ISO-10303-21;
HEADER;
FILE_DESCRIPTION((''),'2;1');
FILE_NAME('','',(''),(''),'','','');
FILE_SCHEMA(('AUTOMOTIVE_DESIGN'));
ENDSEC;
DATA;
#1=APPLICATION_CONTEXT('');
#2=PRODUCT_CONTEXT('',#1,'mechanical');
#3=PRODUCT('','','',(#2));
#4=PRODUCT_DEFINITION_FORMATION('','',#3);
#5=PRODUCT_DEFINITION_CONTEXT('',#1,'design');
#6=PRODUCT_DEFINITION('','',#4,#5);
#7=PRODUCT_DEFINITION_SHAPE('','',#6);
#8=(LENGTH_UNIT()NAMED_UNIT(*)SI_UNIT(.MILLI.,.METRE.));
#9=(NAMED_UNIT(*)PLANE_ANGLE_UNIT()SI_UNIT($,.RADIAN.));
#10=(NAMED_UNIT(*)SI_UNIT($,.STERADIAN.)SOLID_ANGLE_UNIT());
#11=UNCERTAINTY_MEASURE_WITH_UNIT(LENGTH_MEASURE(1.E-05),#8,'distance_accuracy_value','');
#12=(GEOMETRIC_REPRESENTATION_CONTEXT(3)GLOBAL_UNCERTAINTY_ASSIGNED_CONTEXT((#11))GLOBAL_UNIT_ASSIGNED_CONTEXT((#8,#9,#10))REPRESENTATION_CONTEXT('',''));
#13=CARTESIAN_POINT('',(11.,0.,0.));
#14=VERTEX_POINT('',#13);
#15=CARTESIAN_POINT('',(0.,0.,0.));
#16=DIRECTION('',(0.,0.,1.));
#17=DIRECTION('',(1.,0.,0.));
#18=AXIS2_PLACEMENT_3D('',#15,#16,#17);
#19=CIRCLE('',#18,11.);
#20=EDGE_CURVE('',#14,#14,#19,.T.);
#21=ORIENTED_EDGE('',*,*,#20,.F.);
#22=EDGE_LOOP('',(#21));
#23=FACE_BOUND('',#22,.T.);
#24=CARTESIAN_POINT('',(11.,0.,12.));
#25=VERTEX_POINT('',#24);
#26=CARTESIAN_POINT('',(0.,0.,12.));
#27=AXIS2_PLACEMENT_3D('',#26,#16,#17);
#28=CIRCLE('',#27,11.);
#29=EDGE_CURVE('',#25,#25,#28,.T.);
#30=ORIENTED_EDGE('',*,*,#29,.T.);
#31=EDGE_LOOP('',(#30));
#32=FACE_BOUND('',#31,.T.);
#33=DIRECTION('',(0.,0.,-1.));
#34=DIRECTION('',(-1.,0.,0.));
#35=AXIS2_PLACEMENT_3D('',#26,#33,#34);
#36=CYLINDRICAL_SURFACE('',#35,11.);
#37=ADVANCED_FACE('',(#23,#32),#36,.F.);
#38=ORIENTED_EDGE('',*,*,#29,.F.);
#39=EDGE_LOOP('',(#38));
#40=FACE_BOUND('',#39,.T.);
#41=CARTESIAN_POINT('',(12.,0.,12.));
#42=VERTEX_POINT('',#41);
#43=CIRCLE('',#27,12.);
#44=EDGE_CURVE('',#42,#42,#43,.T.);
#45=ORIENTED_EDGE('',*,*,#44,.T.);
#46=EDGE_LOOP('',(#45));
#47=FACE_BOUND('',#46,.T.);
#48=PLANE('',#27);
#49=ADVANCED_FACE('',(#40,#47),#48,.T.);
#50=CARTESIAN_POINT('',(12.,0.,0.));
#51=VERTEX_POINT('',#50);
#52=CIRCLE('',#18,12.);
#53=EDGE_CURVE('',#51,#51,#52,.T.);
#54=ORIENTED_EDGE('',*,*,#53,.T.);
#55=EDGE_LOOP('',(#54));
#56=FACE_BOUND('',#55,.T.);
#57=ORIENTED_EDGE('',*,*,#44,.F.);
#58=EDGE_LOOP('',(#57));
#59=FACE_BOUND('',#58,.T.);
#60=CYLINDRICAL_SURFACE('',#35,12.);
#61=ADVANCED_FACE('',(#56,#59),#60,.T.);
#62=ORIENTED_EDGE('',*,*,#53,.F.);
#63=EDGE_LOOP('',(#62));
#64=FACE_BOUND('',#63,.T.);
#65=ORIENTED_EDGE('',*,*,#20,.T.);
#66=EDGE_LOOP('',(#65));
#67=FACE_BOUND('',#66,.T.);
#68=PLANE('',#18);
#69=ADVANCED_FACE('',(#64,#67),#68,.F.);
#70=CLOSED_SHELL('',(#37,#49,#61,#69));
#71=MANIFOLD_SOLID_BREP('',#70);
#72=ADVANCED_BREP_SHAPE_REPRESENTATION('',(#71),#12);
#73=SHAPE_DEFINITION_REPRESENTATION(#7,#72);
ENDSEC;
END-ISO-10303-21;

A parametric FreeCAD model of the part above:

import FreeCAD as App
import Part
import Sketcher
Q = App.Units.Quantity

doc = App.newDocument("Part")
params = doc.addObject("Spreadsheet::Sheet", "Params")
for row, (alias, value) in enumerate([
    ("sketch1_diameter", "24 mm"),
    ("sketch1_diameter2", "22 mm"),
    ("pad1_length", "12 mm"),
], start=1):
    params.set(f"A{row}", alias)
    params.set(f"B{row}", "=" + value)
    params.setAlias(f"B{row}", alias)

body = doc.addObject("PartDesign::Body", "Body")

# Sketch on XY plane
sketch1 = doc.addObject("Sketcher::SketchObject", "Sketch")
body.addObject(sketch1)
sketch1.AttachmentSupport = (doc.XY_Plane, [""])
sketch1.MapMode = "FlatFace"
sketch1.addGeometry(Part.Circle(App.Vector(0, 0, 0), App.Vector(0, 0, 1), 12), False)
sketch1.addGeometry(Part.Circle(App.Vector(0, 0, 0), App.Vector(0, 0, 1), 11), False)
sketch1.addConstraint(Sketcher.Constraint("Coincident", 0, 3, -1, 1))
sketch1.addConstraint(Sketcher.Constraint("Coincident", 1, 3, -1, 1))
sketch1.addConstraint(Sketcher.Constraint("Diameter", 0, Q("24 mm")))
sketch1.addConstraint(Sketcher.Constraint("Diameter", 1, Q("22 mm")))
sketch1.setExpression("Constraints[2]", "Params.sketch1_diameter")
sketch1.setExpression("Constraints[3]", "Params.sketch1_diameter2")
pad1 = doc.addObject("PartDesign::Pad", "Pad")
body.addObject(pad1)
pad1.Profile = sketch1
pad1.setExpression("Length", "Params.pad1_length")

doc.recompute()
